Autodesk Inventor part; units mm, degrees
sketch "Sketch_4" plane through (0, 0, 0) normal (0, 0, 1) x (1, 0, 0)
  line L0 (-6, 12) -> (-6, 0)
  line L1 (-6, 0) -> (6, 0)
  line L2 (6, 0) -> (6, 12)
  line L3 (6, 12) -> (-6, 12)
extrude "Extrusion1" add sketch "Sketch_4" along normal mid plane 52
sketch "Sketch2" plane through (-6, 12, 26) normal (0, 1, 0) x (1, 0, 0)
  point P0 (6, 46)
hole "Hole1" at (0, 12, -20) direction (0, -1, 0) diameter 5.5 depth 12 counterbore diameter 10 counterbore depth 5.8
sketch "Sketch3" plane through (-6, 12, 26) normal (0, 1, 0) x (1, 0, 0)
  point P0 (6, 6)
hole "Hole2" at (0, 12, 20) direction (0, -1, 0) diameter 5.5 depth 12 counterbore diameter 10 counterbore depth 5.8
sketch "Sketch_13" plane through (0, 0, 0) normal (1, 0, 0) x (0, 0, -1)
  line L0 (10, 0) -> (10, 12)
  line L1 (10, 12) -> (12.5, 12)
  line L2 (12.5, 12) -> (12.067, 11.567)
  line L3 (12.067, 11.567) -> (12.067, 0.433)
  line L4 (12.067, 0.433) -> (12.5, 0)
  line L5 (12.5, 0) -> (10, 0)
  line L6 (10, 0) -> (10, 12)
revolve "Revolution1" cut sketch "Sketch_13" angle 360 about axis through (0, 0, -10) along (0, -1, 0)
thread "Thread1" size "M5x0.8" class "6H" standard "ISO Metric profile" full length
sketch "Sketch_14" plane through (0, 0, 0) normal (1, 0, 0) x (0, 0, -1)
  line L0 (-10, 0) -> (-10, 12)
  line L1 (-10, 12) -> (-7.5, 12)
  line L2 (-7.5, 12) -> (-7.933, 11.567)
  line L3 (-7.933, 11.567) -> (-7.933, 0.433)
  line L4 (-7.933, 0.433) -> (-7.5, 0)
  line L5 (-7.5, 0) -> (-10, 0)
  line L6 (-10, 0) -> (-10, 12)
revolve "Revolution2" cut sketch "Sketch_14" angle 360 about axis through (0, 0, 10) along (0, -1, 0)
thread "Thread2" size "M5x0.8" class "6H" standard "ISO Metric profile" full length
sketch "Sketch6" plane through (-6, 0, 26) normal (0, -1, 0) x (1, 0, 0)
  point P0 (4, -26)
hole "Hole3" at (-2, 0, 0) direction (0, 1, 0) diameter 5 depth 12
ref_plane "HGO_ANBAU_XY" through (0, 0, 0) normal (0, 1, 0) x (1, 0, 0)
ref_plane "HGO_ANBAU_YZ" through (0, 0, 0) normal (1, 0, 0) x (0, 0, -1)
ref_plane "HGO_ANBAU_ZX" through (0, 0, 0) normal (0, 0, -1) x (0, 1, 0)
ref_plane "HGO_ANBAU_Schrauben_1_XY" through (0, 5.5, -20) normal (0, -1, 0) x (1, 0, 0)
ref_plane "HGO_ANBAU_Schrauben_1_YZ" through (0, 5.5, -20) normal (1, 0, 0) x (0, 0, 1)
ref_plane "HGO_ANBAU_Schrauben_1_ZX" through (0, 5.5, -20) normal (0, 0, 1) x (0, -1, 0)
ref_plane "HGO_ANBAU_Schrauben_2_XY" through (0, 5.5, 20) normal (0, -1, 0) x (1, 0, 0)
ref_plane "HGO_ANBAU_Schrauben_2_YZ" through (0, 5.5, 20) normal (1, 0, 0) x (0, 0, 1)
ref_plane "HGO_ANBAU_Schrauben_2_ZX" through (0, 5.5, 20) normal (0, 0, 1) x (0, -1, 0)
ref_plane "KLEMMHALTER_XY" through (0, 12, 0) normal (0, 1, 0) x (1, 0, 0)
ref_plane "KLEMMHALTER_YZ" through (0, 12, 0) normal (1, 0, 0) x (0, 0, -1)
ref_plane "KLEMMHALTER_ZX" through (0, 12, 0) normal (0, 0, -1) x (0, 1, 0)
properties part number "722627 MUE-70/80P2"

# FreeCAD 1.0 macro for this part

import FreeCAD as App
import Part
import Sketcher
Q = App.Units.Quantity

doc = App.newDocument("Part")
body = doc.addObject("PartDesign::Body", "Body")

# Sketch on XY plane
sketch1 = doc.addObject("Sketcher::SketchObject", "Sketch")
body.addObject(sketch1)
sketch1.AttachmentSupport = (doc.XY_Plane, [""])
sketch1.MapMode = "FlatFace"
sketch1.addGeometry(Part.LineSegment(App.Vector(6, 12, 0), App.Vector(-6, 12, 0)), False)
sketch1.addGeometry(Part.LineSegment(App.Vector(-6, 12, 0), App.Vector(-6, 0, 0)), False)
sketch1.addGeometry(Part.LineSegment(App.Vector(-6, 0, 0), App.Vector(6, 0, 0)), False)
sketch1.addGeometry(Part.LineSegment(App.Vector(6, 0, 0), App.Vector(6, 12, 0)), False)
sketch1.addConstraint(Sketcher.Constraint("Coincident", 0, 2, 1, 1))
sketch1.addConstraint(Sketcher.Constraint("Coincident", 1, 2, 2, 1))
sketch1.addConstraint(Sketcher.Constraint("Coincident", 2, 2, 3, 1))
sketch1.addConstraint(Sketcher.Constraint("Coincident", 3, 2, 0, 1))
sketch1.addConstraint(Sketcher.Constraint("Horizontal", 0))
sketch1.addConstraint(Sketcher.Constraint("Vertical", 1))
sketch1.addConstraint(Sketcher.Constraint("Horizontal", 2))
sketch1.addConstraint(Sketcher.Constraint("Vertical", 3))
sketch1.addConstraint(Sketcher.Constraint("Symmetric", 1, 2, 2, 2, -1, 1))
sketch1.addConstraint(Sketcher.Constraint("Equal", 2, 1))
sketch1.addConstraint(Sketcher.Constraint("DistanceX", 0, 2, 0, 1, Q("12 mm")))
pad1 = doc.addObject("PartDesign::Pad", "Pad")
body.addObject(pad1)
pad1.Profile = sketch1
pad1.Length = 52
pad1.Midplane = True

# Sketch on XZ plane
sketch2 = doc.addObject("Sketcher::SketchObject", "Sketch001")
body.addObject(sketch2)
sketch2.AttachmentSupport = (doc.XZ_Plane, [""])
sketch2.MapMode = "FlatFace"
sketch2.AttachmentOffset = App.Placement(App.Vector(0, 0, -12), App.Rotation())
sketch2.addGeometry(Part.Circle(App.Vector(0, -20, 0), App.Vector(0, 0, 1), 2.8), False)
sketch2.addConstraint(Sketcher.Constraint("PointOnObject", 0, 3, -2))
sketch2.addConstraint(Sketcher.Constraint("Diameter", 0, Q("5.5 mm")))
sketch2.addConstraint(Sketcher.Constraint("DistanceY", 0, 3, -1, 1, Q("20 mm")))
doc.recompute()
hole = doc.addObject("PartDesign::Hole", "Hole")
body.addObject(hole)
hole.Profile = sketch2
hole.ThreadType = "None"
hole.Diameter = 5.5
hole.DepthType = "Dimension"
hole.Depth = 12
hole.DrillPoint = "Flat"
hole.HoleCutType = "Counterbore"
hole.HoleCutDiameter = 10
hole.HoleCutDepth = 5.8
hole.Reversed = True

# Sketch on XZ plane
sketch3 = doc.addObject("Sketcher::SketchObject", "Sketch002")
body.addObject(sketch3)
sketch3.AttachmentSupport = (doc.XZ_Plane, [""])
sketch3.MapMode = "FlatFace"
sketch3.AttachmentOffset = App.Placement(App.Vector(0, 0, -12), App.Rotation())
sketch3.addGeometry(Part.Circle(App.Vector(0, 20, 0), App.Vector(0, 0, 1), 2.8), False)
sketch3.addConstraint(Sketcher.Constraint("PointOnObject", 0, 3, -2))
sketch3.addConstraint(Sketcher.Constraint("Diameter", 0, Q("5.5 mm")))
sketch3.addConstraint(Sketcher.Constraint("DistanceY", -1, 1, 0, 3, Q("20 mm")))
doc.recompute()
hole2 = doc.addObject("PartDesign::Hole", "Hole001")
body.addObject(hole2)
hole2.Profile = sketch3
hole2.ThreadType = "None"
hole2.Diameter = 5.5
hole2.DepthType = "Dimension"
hole2.Depth = 12
hole2.DrillPoint = "Flat"
hole2.HoleCutType = "Counterbore"
hole2.HoleCutDiameter = 10
hole2.HoleCutDepth = 5.8
hole2.Reversed = True

# Sketch on YZ plane
sketch4 = doc.addObject("Sketcher::SketchObject", "Sketch003")
body.addObject(sketch4)
sketch4.AttachmentSupport = (doc.YZ_Plane, [""])
sketch4.MapMode = "FlatFace"
sketch4.addGeometry(Part.LineSegment(App.Vector(12, -10, 0), App.Vector(0, -10, 0)), False)
sketch4.addGeometry(Part.LineSegment(App.Vector(0, -10, 0), App.Vector(0, -12.5, 0)), False)
sketch4.addGeometry(Part.LineSegment(App.Vector(0, -12.5, 0), App.Vector(0.4, -12.1, 0)), False)
sketch4.addGeometry(Part.LineSegment(App.Vector(0.4, -12.1, 0), App.Vector(11.6, -12.1, 0)), False)
sketch4.addGeometry(Part.LineSegment(App.Vector(11.6, -12.1, 0), App.Vector(12, -12.5, 0)), False)
sketch4.addGeometry(Part.LineSegment(App.Vector(12, -12.5, 0), App.Vector(12, -10, 0)), False)
sketch4.addGeometry(Part.LineSegment(App.Vector(12, -10, 0), App.Vector(0, -10, 0)), True)  # axis
sketch4.addConstraint(Sketcher.Constraint("Coincident", 0, 2, 1, 1))
sketch4.addConstraint(Sketcher.Constraint("Coincident", 1, 2, 2, 1))
sketch4.addConstraint(Sketcher.Constraint("Coincident", 2, 2, 3, 1))
sketch4.addConstraint(Sketcher.Constraint("Coincident", 3, 2, 4, 1))
sketch4.addConstraint(Sketcher.Constraint("Coincident", 4, 2, 5, 1))
sketch4.addConstraint(Sketcher.Constraint("Coincident", 5, 2, 0, 1))
sketch4.addConstraint(Sketcher.Constraint("Horizontal", 0))
sketch4.addConstraint(Sketcher.Constraint("Vertical", 1))
sketch4.addConstraint(Sketcher.Constraint("Horizontal", 3))
sketch4.addConstraint(Sketcher.Constraint("Vertical", 5))
sketch4.addConstraint(Sketcher.Constraint("Horizontal", 6))
sketch4.addConstraint(Sketcher.Constraint("Coincident", 6, 1, 5, 2))
sketch4.addConstraint(Sketcher.Constraint("PointOnObject", 0, 2, -2))
sketch4.addConstraint(Sketcher.Constraint("PointOnObject", 6, 2, -2))
sketch4.addConstraint(Sketcher.Constraint("Perpendicular", 2, 4))
sketch4.addConstraint(Sketcher.Constraint("Horizontal", 1, 2, 4, 2))
sketch4.addConstraint(Sketcher.Constraint("Equal", 2, 4))
sketch4.addConstraint(Sketcher.Constraint("DistanceX", 0, 2, 0, 1, Q("12 mm")))
sketch4.addConstraint(Sketcher.Constraint("DistanceY", 1, 2, 1, 1, Q("2.5 mm")))
sketch4.addConstraint(Sketcher.Constraint("DistanceY", 0, 2, -1, 1, Q("10 mm")))
sketch4.addConstraint(Sketcher.Constraint("DistanceX", 3, 1, 3, 2, Q("11.134 mm")))
groove = doc.addObject("PartDesign::Groove", "Groove")
body.addObject(groove)
groove.Profile = sketch4
groove.ReferenceAxis = (sketch4, ["Axis0"])
groove.Angle = 360

# Sketch on YZ plane
sketch5 = doc.addObject("Sketcher::SketchObject", "Sketch004")
body.addObject(sketch5)
sketch5.AttachmentSupport = (doc.YZ_Plane, [""])
sketch5.MapMode = "FlatFace"
sketch5.addGeometry(Part.LineSegment(App.Vector(12, 10, 0), App.Vector(0, 10, 0)), False)
sketch5.addGeometry(Part.LineSegment(App.Vector(0, 10, 0), App.Vector(0, 7.5, 0)), False)
sketch5.addGeometry(Part.LineSegment(App.Vector(0, 7.5, 0), App.Vector(0.4, 7.9, 0)), False)
sketch5.addGeometry(Part.LineSegment(App.Vector(0.4, 7.9, 0), App.Vector(11.6, 7.9, 0)), False)
sketch5.addGeometry(Part.LineSegment(App.Vector(11.6, 7.9, 0), App.Vector(12, 7.5, 0)), False)
sketch5.addGeometry(Part.LineSegment(App.Vector(12, 7.5, 0), App.Vector(12, 10, 0)), False)
sketch5.addGeometry(Part.LineSegment(App.Vector(12, 10, 0), App.Vector(0, 10, 0)), True)  # axis
sketch5.addConstraint(Sketcher.Constraint("Coincident", 0, 2, 1, 1))
sketch5.addConstraint(Sketcher.Constraint("Coincident", 1, 2, 2, 1))
sketch5.addConstraint(Sketcher.Constraint("Coincident", 2, 2, 3, 1))
sketch5.addConstraint(Sketcher.Constraint("Coincident", 3, 2, 4, 1))
sketch5.addConstraint(Sketcher.Constraint("Coincident", 4, 2, 5, 1))
sketch5.addConstraint(Sketcher.Constraint("Coincident", 5, 2, 0, 1))
sketch5.addConstraint(Sketcher.Constraint("Horizontal", 0))
sketch5.addConstraint(Sketcher.Constraint("Vertical", 1))
sketch5.addConstraint(Sketcher.Constraint("Horizontal", 3))
sketch5.addConstraint(Sketcher.Constraint("Vertical", 5))
sketch5.addConstraint(Sketcher.Constraint("Horizontal", 6))
sketch5.addConstraint(Sketcher.Constraint("Coincident", 6, 1, 5, 2))
sketch5.addConstraint(Sketcher.Constraint("PointOnObject", 0, 2, -2))
sketch5.addConstraint(Sketcher.Constraint("PointOnObject", 6, 2, -2))
sketch5.addConstraint(Sketcher.Constraint("Perpendicular", 2, 4))
sketch5.addConstraint(Sketcher.Constraint("Horizontal", 1, 2, 4, 2))
sketch5.addConstraint(Sketcher.Constraint("Equal", 2, 4))
sketch5.addConstraint(Sketcher.Constraint("DistanceX", 0, 2, 0, 1, Q("12 mm")))
sketch5.addConstraint(Sketcher.Constraint("DistanceY", 1, 2, 1, 1, Q("2.5 mm")))
sketch5.addConstraint(Sketcher.Constraint("DistanceY", -1, 1, 0, 2, Q("10 mm")))
sketch5.addConstraint(Sketcher.Constraint("DistanceX", 3, 1, 3, 2, Q("11.134 mm")))
groove2 = doc.addObject("PartDesign::Groove", "Groove001")
body.addObject(groove2)
groove2.Profile = sketch5
groove2.ReferenceAxis = (sketch5, ["Axis0"])
groove2.Angle = 360

# Sketch on XZ plane
sketch6 = doc.addObject("Sketcher::SketchObject", "Sketch005")
body.addObject(sketch6)
sketch6.AttachmentSupport = (doc.XZ_Plane, [""])
sketch6.MapMode = "FlatFace"
sketch6.addGeometry(Part.Circle(App.Vector(-2, 0, 0), App.Vector(0, 0, 1), 2.5), False)
sketch6.addConstraint(Sketcher.Constraint("PointOnObject", 0, 3, -1))
sketch6.addConstraint(Sketcher.Constraint("Diameter", 0, Q("5 mm")))
sketch6.addConstraint(Sketcher.Constraint("DistanceX", 0, 3, -1, 1, Q("2 mm")))
doc.recompute()
hole3 = doc.addObject("PartDesign::Hole", "Hole002")
body.addObject(hole3)
hole3.Profile = sketch6
hole3.ThreadType = "None"
hole3.Diameter = 5
hole3.DepthType = "Dimension"
hole3.Depth = 12
hole3.DrillPoint = "Flat"

doc.recompute()
